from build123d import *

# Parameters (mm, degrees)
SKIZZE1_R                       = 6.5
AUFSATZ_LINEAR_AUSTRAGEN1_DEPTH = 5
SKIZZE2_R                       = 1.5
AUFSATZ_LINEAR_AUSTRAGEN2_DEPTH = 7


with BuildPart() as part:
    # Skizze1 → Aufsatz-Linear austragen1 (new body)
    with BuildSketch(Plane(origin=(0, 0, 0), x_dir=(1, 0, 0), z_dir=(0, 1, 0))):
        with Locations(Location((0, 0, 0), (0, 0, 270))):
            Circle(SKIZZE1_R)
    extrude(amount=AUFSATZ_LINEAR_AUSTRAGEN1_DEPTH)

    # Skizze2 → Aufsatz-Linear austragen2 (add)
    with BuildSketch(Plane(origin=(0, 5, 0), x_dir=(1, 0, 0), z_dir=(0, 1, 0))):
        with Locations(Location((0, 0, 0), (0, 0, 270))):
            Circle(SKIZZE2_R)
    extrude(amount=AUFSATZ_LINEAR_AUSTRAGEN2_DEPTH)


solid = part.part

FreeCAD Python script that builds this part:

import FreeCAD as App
import Part
import Sketcher

V = App.Vector
Q = App.Units.Quantity

doc = App.newDocument("Part")
body = doc.addObject("PartDesign::Body", "Body")

sketch1 = body.newObject("Sketcher::SketchObject", "Sketch")
sketch1.AttachmentSupport = (doc.getObject("XZ_Plane"), [""])
sketch1.MapMode = "FlatFace"
sketch1.addGeometry(Part.Circle(V(0, 0, 0), V(0, 0, 1), 6), False)
sketch1.addConstraint([
    Sketcher.Constraint("Coincident", 0, 3, -1, 1),
    Sketcher.Constraint("Diameter", 0, Q("13 mm")),
])
pad1 = body.newObject("PartDesign::Pad", "Pad")
pad1.Profile = sketch1
pad1.Length = 5
pad1.Reversed = True

sketch2 = body.newObject("Sketcher::SketchObject", "Sketch001")
sketch2.AttachmentSupport = (doc.getObject("XZ_Plane"), [""])
sketch2.MapMode = "FlatFace"
sketch2.AttachmentOffset = App.Placement(V(0, 0, -5), App.Rotation())
sketch2.addGeometry(Part.Circle(V(0, 0, 0), V(0, 0, 1), 1.5), False)
sketch2.addConstraint([
    Sketcher.Constraint("Coincident", 0, 3, -1, 1),
    Sketcher.Constraint("Diameter", 0, Q("3 mm")),
])
pad2 = body.newObject("PartDesign::Pad", "Pad001")
pad2.Profile = sketch2
pad2.Length = 7
pad2.Reversed = True

doc.recompute()
